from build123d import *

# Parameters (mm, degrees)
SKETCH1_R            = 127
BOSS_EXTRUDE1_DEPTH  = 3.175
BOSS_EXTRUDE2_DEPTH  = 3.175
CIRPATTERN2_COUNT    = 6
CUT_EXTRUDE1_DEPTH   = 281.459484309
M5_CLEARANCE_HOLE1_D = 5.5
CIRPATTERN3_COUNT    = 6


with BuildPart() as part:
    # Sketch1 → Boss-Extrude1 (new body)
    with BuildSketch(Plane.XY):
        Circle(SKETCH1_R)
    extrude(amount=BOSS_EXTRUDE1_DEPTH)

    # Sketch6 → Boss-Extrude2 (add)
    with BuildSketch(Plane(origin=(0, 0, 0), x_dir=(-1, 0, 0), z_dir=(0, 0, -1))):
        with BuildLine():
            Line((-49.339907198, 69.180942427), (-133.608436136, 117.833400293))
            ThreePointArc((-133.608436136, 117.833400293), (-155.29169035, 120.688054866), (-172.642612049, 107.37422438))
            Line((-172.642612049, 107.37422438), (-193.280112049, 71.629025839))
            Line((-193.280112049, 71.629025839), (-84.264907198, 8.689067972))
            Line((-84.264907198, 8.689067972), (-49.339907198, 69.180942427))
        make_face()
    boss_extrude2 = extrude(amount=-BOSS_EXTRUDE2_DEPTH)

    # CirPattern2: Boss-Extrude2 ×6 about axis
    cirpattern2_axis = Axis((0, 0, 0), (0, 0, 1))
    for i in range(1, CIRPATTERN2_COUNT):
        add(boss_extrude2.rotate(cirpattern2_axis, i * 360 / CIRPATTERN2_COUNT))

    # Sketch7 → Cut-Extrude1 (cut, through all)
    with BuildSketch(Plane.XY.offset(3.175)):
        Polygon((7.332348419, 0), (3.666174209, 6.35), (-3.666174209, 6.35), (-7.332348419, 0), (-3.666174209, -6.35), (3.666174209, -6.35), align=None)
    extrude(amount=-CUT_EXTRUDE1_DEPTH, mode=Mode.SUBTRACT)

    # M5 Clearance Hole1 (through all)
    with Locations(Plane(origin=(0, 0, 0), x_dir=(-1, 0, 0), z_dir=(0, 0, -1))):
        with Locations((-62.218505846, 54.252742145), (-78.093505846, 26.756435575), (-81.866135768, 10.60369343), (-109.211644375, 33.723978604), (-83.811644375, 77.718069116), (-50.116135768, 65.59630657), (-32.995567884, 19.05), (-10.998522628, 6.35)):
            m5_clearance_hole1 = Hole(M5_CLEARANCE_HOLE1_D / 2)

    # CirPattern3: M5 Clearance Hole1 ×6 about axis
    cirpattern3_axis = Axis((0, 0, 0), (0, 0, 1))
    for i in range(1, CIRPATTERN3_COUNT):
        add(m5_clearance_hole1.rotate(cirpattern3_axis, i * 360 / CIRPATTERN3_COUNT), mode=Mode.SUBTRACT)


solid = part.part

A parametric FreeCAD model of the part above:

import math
import FreeCAD as App
import Part
import Sketcher
from FreeCAD import Vector
Q = App.Units.Quantity


def add_polygon(sketch, points):
    """Adds a closed chain of lines whose ends are joined by coincident constraints."""
    first, n = sketch.GeometryCount, len(points)
    for a, b in zip(points, points[1:] + points[:1]):
        sketch.addGeometry(Part.LineSegment(App.Vector(*a, 0), App.Vector(*b, 0)), False)
    for i in range(n):
        sketch.addConstraint(Sketcher.Constraint("Coincident", first + i, 2, first + (i + 1) % n, 1))

doc = App.newDocument("Part")
body = doc.addObject("PartDesign::Body", "Body")

# Sketch on XY plane
sketch1 = body.newObject("Sketcher::SketchObject", "Sketch")
sketch1.AttachmentSupport = (doc.getObject("XY_Plane"), [""])
sketch1.MapMode = "FlatFace"
sketch1.addGeometry(Part.Circle(Vector(0, 0, 0), Vector(0, 0, 1), 127), False)
sketch1.addConstraint(Sketcher.Constraint("Coincident", 0, 3, -1, 1))
sketch1.addConstraint(Sketcher.Constraint("Diameter", 0, Q("10 in")))
pad1 = body.newObject("PartDesign::Pad", "Pad")
pad1.Profile = sketch1
pad1.Length = Q("0.125 in")

# Sketch on XY plane
sketch2 = body.newObject("Sketcher::SketchObject", "Sketch001")
sketch2.AttachmentSupport = (doc.getObject("XY_Plane"), [""])
sketch2.MapMode = "FlatFace"
sketch2.addGeometry(Part.LineSegment(Vector(49.339907, 69.180942, 0), Vector(133.608436, 117.8334, 0)), False)
sketch2.addGeometry(Part.ArcOfCircle(Part.Circle(Vector(147.895936, 93.086724, 0), Vector(0, 0, 1), 28.575), math.radians(30), math.radians(120)), False)
sketch2.addGeometry(Part.LineSegment(Vector(172.642612, 107.374224, 0), Vector(193.280112, 71.629026, 0)), False)
sketch2.addGeometry(Part.LineSegment(Vector(193.280112, 71.629026, 0), Vector(84.264907, 8.689068, 0)), False)
sketch2.addGeometry(Part.LineSegment(Vector(84.264907, 8.689068, 0), Vector(49.339907, 69.180942, 0)), False)
sketch2.addConstraint(Sketcher.Constraint("Tangent", 0, 2, 1, 2))
sketch2.addConstraint(Sketcher.Constraint("Tangent", 1, 1, 2, 1))
sketch2.addConstraint(Sketcher.Constraint("Coincident", 2, 2, 3, 1))
sketch2.addConstraint(Sketcher.Constraint("Coincident", 3, 2, 4, 1))
sketch2.addConstraint(Sketcher.Constraint("Coincident", 4, 2, 0, 1))
sketch2.addConstraint(Sketcher.Constraint("Perpendicular", 0, 2))
sketch2.addConstraint(Sketcher.Constraint("Perpendicular", 2, 3))
sketch2.addConstraint(Sketcher.Constraint("Perpendicular", 3, 4))
sketch2.addConstraint(Sketcher.Constraint("Angle", 0, Q("30 deg")))
sketch2.addConstraint(Sketcher.Constraint("Radius", 1, Q("1.125 in")))
sketch2.addConstraint(Sketcher.Constraint("Distance", 4, Q("2.75 in")))
sketch2.addConstraint(Sketcher.Constraint("DistanceY", -1, 1, 0, 2, 117.8334))
sketch2.addConstraint(Sketcher.Constraint("DistanceX", 3, 2, 1, 3, 63.631029))
sketch2.addConstraint(Sketcher.Constraint("DistanceX", -1, 1, 1, 3, 147.895936))
pad2 = body.newObject("PartDesign::Pad", "Pad001")
pad2.Profile = sketch2
pad2.Length = Q("0.125 in")
doc.recompute()

polarpattern = body.newObject("PartDesign::PolarPattern", "PolarPattern")
polarpattern.Originals = [pad2]
polarpattern.Axis = (doc.getObject("Z_Axis"), [""])
polarpattern.Angle = 360
polarpattern.Occurrences = 6
body.Tip = polarpattern

# Sketch on XY plane
sketch3 = body.newObject("Sketcher::SketchObject", "Sketch002")
sketch3.AttachmentSupport = (doc.getObject("XY_Plane"), [""])
sketch3.MapMode = "FlatFace"
sketch3.AttachmentOffset = App.Placement(Vector(0, 0, 0.125 * 25.4), App.Rotation())
add_polygon(sketch3, [(7.332348, 0), (3.666174, 6.35), (-3.666174, 6.35), (-7.332348, 0), (-3.666174, -6.35), (3.666174, -6.35)])  # lines 0-5
sketch3.addConstraint(Sketcher.Constraint("Horizontal", 1))
sketch3.addConstraint(Sketcher.Constraint("Horizontal", 4))
sketch3.addConstraint(Sketcher.Constraint("Symmetric", 0, 2, 3, 2, -1, 1))
sketch3.addConstraint(Sketcher.Constraint("Symmetric", 2, 2, 5, 2, -1, 1))
sketch3.addConstraint(Sketcher.Constraint("PointOnObject", 2, 2, -1))
sketch3.addConstraint(Sketcher.Constraint("Parallel", 2, 5))
sketch3.addConstraint(Sketcher.Constraint("Vertical", 1, 2, 3, 2))
sketch3.addConstraint(Sketcher.Constraint("Angle", 0, Q("120 deg")))
sketch3.addConstraint(Sketcher.Constraint("DistanceY", 3, 2, 1, 2, Q("0.5 in")))
sketch3.addConstraint(Sketcher.Constraint("DistanceX", 1, 2, 1, 1, 7.332348))
pocket1 = body.newObject("PartDesign::Pocket", "Pocket")
pocket1.Profile = sketch3
pocket1.Type = "ThroughAll"

# Sketch on XY plane
sketch4 = body.newObject("Sketcher::SketchObject", "Sketch003")
sketch4.AttachmentSupport = (doc.getObject("XY_Plane"), [""])
sketch4.MapMode = "FlatFace"
sketch4.addGeometry(Part.Circle(Vector(62.218506, 54.252742, 0), Vector(0, 0, 1), 2.75), False)
sketch4.addGeometry(Part.Circle(Vector(78.093506, 26.756436, 0), Vector(0, 0, 1), 2.75), False)
sketch4.addGeometry(Part.Circle(Vector(81.866136, 10.603693, 0), Vector(0, 0, 1), 2.75), False)
sketch4.addGeometry(Part.Circle(Vector(109.211644, 33.723979, 0), Vector(0, 0, 1), 2.75), False)
sketch4.addGeometry(Part.Circle(Vector(83.811644, 77.718069, 0), Vector(0, 0, 1), 2.75), False)
sketch4.addGeometry(Part.Circle(Vector(50.116136, 65.596307, 0), Vector(0, 0, 1), 2.75), False)
sketch4.addGeometry(Part.Circle(Vector(32.995568, 19.05, 0), Vector(0, 0, 1), 2.75), False)
sketch4.addGeometry(Part.Circle(Vector(10.998523, 6.35, 0), Vector(0, 0, 1), 2.75), False)
sketch4.addConstraint(Sketcher.Constraint("Equal", 0, 1))
sketch4.addConstraint(Sketcher.Constraint("Equal", 1, 2))
sketch4.addConstraint(Sketcher.Constraint("Equal", 2, 3))
sketch4.addConstraint(Sketcher.Constraint("Equal", 3, 4))
sketch4.addConstraint(Sketcher.Constraint("Equal", 4, 5))
sketch4.addConstraint(Sketcher.Constraint("Equal", 5, 6))
sketch4.addConstraint(Sketcher.Constraint("Equal", 6, 7))
sketch4.addConstraint(Sketcher.Constraint("DistanceX", 4, 3, 3, 3, Q("1 in")))
sketch4.addConstraint(Sketcher.Constraint("DistanceY", 7, 3, 6, 3, Q("0.5 in")))
sketch4.addConstraint(Sketcher.Constraint("Diameter", 0, 5.5))
sketch4.addConstraint(Sketcher.Constraint("DistanceY", -1, 1, 6, 3, Q("0.75 in")))
sketch4.addConstraint(Sketcher.Constraint("DistanceX", 5, 3, 2, 3, Q("1.25 in")))
sketch4.addConstraint(Sketcher.Constraint("DistanceX", 0, 3, 1, 3, Q("0.625 in")))
sketch4.addConstraint(Sketcher.Constraint("DistanceY", -1, 1, 3, 3, 33.723979))
sketch4.addConstraint(Sketcher.Constraint("DistanceY", -1, 1, 4, 3, 77.718069))
sketch4.addConstraint(Sketcher.Constraint("DistanceX", 1, 3, 2, 3, 3.77263))
sketch4.addConstraint(Sketcher.Constraint("DistanceY", 2, 3, 0, 3, 43.649049))
sketch4.addConstraint(Sketcher.Constraint("DistanceX", 1, 3, 3, 3, 31.118139))
sketch4.addConstraint(Sketcher.Constraint("DistanceY", 1, 3, 5, 3, 38.839871))
sketch4.addConstraint(Sketcher.Constraint("DistanceX", -1, 1, 0, 3, 62.218506))
sketch4.addConstraint(Sketcher.Constraint("DistanceY", -1, 1, 0, 3, 54.252742))
sketch4.addConstraint(Sketcher.Constraint("DistanceY", -1, 1, 1, 3, 26.756436))
sketch4.addConstraint(Sketcher.Constraint("DistanceX", -1, 1, 6, 3, 32.995568))
sketch4.addConstraint(Sketcher.Constraint("DistanceX", -1, 1, 7, 3, 10.998523))
doc.recompute()
hole = body.newObject("PartDesign::Hole", "Hole")
hole.Profile = sketch4
hole.ThreadType = "None"
hole.Diameter = 5.5
hole.DepthType = "ThroughAll"
hole.Reversed = True
doc.recompute()

polarpattern2 = body.newObject("PartDesign::PolarPattern", "PolarPattern001")
polarpattern2.Originals = [hole]
polarpattern2.Axis = (doc.getObject("Z_Axis"), [""])
polarpattern2.Angle = 360
polarpattern2.Occurrences = 6
body.Tip = polarpattern2

doc.recompute()
